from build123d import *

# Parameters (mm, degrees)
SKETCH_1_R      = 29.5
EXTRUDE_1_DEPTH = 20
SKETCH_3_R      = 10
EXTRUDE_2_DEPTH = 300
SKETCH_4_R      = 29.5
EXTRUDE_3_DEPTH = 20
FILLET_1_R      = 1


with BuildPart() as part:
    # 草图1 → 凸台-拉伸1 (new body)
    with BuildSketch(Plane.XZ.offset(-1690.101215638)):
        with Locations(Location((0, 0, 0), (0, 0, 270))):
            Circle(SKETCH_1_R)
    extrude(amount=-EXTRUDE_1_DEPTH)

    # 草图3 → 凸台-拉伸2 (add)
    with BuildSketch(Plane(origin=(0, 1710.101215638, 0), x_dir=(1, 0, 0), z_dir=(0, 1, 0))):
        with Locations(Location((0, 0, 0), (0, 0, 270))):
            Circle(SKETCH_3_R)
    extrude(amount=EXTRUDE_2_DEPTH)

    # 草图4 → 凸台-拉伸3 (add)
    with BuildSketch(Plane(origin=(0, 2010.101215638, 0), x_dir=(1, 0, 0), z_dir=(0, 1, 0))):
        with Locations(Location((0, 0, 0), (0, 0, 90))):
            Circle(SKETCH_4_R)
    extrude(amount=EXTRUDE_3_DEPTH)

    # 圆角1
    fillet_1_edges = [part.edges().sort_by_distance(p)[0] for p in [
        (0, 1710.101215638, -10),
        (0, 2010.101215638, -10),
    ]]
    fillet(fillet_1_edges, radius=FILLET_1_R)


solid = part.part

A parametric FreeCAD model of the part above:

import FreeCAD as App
import Part
import Sketcher
Q = App.Units.Quantity


def edges_at(feature, points):
    """Names of the edges that pass closest to the given points."""
    edges = feature.Shape.Edges
    near = lambda p: min(range(len(edges)), key=lambda i: edges[i].distToShape(Part.Vertex(*p))[0])
    return sorted({f"Edge{near(p) + 1}" for p in points})

doc = App.newDocument("Part")
params = doc.addObject("Spreadsheet::Sheet", "Params")
for row, (alias, value) in enumerate([
    ("sketch1_diameter", "59 mm"),
    ("pad1_length", "20 mm"),
    ("sketch2_diameter", "20 mm"),
    ("pad2_length", "300 mm"),
    ("sketch3_diameter", "59 mm"),
    ("pad3_length", "20 mm"),
    ("fillet_radius", "1 mm"),
], start=1):
    params.set(f"A{row}", alias)
    params.set(f"B{row}", "=" + value)
    params.setAlias(f"B{row}", alias)

body = doc.addObject("PartDesign::Body", "Body")

sketch1 = doc.addObject("Sketcher::SketchObject", "Sketch")
body.addObject(sketch1)
sketch1.AttachmentSupport = (doc.XZ_Plane, [""])
sketch1.MapMode = "FlatFace"
sketch1.AttachmentOffset = App.Placement(App.Vector(0, 0, -1690.101216), App.Rotation())
sketch1.addGeometry(Part.Circle(App.Vector(0, 0, 0), App.Vector(0, 0, 1), 29.5), False)
sketch1.addConstraint(Sketcher.Constraint("Coincident", 0, 3, -1, 1))
sketch1.addConstraint(Sketcher.Constraint("Diameter", 0, Q("59 mm")))
sketch1.setExpression("Constraints[1]", "Params.sketch1_diameter")
pad1 = doc.addObject("PartDesign::Pad", "Pad")
body.addObject(pad1)
pad1.Profile = sketch1
pad1.setExpression("Length", "Params.pad1_length")
pad1.Reversed = True

sketch2 = doc.addObject("Sketcher::SketchObject", "Sketch001")
body.addObject(sketch2)
sketch2.AttachmentSupport = (doc.XZ_Plane, [""])
sketch2.MapMode = "FlatFace"
sketch2.AttachmentOffset = App.Placement(App.Vector(0, 0, -1710.101216), App.Rotation())
sketch2.addGeometry(Part.Circle(App.Vector(0, 0, 0), App.Vector(0, 0, 1), 10), False)
sketch2.addConstraint(Sketcher.Constraint("Coincident", 0, 3, -1, 1))
sketch2.addConstraint(Sketcher.Constraint("Diameter", 0, Q("20 mm")))
sketch2.setExpression("Constraints[1]", "Params.sketch2_diameter")
pad2 = doc.addObject("PartDesign::Pad", "Pad001")
body.addObject(pad2)
pad2.Profile = sketch2
pad2.setExpression("Length", "Params.pad2_length")
pad2.Reversed = True

sketch3 = doc.addObject("Sketcher::SketchObject", "Sketch002")
body.addObject(sketch3)
sketch3.AttachmentSupport = (doc.XZ_Plane, [""])
sketch3.MapMode = "FlatFace"
sketch3.AttachmentOffset = App.Placement(App.Vector(0, 0, -2010.101216), App.Rotation())
sketch3.addGeometry(Part.Circle(App.Vector(0, 0, 0), App.Vector(0, 0, 1), 29.5), False)
sketch3.addConstraint(Sketcher.Constraint("Coincident", 0, 3, -1, 1))
sketch3.addConstraint(Sketcher.Constraint("Diameter", 0, Q("59 mm")))
sketch3.setExpression("Constraints[1]", "Params.sketch3_diameter")
pad3 = doc.addObject("PartDesign::Pad", "Pad002")
body.addObject(pad3)
pad3.Profile = sketch3
pad3.setExpression("Length", "Params.pad3_length")
pad3.Reversed = True
doc.recompute()

fillet = doc.addObject("PartDesign::Fillet", "Fillet")
body.addObject(fillet)
fillet.Base = (pad3, edges_at(pad3, [(0, 1710.101, -10), (0, 2010.101, -10)]))
fillet.setExpression("Radius", "Params.fillet_radius")

doc.recompute()
